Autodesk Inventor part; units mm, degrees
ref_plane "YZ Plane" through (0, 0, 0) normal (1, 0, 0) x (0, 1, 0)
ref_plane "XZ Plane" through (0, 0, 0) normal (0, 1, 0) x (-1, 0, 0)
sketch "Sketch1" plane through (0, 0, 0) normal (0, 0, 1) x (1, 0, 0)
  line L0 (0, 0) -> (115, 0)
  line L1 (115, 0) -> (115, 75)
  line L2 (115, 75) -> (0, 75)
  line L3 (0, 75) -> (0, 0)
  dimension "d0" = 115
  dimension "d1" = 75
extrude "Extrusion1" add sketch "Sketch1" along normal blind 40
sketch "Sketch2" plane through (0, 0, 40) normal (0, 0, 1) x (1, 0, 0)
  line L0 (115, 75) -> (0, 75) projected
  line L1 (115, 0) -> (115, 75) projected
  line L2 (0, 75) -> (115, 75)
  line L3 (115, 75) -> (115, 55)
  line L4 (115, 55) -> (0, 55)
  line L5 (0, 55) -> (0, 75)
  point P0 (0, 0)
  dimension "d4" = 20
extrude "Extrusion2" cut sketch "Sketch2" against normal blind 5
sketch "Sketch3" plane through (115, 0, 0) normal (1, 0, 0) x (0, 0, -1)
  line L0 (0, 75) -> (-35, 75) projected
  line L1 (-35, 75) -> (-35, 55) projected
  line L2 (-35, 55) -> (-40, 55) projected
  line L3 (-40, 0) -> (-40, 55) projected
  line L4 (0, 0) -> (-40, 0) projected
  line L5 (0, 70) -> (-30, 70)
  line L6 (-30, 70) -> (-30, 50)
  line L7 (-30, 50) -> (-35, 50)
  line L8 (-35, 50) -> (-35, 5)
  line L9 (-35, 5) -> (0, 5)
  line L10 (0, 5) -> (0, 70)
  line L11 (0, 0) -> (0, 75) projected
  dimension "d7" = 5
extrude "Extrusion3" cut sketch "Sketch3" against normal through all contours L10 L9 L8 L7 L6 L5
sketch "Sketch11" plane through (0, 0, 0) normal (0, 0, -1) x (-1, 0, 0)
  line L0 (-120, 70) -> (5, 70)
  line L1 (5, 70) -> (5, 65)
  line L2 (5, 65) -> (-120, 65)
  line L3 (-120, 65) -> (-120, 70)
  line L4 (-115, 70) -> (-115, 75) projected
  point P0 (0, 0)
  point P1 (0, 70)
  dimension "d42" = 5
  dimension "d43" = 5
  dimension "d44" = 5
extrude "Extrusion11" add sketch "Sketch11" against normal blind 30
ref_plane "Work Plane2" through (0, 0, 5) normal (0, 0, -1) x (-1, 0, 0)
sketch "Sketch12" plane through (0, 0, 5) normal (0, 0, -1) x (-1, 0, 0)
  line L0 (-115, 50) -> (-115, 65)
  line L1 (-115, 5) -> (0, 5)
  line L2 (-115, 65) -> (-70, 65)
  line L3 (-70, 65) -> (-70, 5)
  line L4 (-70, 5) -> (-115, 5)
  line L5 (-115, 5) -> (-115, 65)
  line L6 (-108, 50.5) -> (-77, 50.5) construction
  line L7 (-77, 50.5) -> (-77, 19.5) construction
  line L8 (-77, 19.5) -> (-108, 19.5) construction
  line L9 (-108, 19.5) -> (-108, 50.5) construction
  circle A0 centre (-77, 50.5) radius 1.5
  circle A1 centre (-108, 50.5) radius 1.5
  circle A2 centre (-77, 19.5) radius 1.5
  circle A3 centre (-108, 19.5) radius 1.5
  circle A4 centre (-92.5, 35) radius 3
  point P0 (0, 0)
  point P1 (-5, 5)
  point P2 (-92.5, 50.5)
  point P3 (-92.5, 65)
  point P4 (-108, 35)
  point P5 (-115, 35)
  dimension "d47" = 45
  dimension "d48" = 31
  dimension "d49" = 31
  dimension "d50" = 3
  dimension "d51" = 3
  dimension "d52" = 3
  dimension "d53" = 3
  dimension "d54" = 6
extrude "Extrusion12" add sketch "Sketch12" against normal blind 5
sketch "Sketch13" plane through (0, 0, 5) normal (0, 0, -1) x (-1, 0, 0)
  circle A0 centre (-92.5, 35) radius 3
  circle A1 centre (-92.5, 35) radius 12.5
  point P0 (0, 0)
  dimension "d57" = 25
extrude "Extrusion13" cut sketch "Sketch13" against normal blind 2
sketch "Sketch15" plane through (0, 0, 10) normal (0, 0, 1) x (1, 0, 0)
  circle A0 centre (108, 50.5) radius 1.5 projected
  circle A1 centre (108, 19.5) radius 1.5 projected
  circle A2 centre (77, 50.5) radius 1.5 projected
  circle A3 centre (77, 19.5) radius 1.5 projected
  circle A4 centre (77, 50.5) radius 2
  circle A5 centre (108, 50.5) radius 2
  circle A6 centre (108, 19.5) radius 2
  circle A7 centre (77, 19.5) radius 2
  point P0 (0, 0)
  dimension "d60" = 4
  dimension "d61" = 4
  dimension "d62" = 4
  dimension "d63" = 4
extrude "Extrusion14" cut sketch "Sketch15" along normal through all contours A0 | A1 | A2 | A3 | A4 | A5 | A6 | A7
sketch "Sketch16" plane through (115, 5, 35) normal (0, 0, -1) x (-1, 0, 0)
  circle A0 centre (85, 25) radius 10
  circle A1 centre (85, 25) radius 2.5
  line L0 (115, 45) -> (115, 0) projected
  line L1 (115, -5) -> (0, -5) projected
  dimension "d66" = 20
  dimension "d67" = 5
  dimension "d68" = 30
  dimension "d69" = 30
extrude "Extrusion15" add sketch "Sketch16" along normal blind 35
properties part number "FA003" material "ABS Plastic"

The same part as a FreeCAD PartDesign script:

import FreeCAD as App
import Part
import Sketcher

V = App.Vector
Q = App.Units.Quantity

doc = App.newDocument("Part")
body = doc.addObject("PartDesign::Body", "Body")

sketch1 = body.newObject("Sketcher::SketchObject", "Sketch")
sketch1.AttachmentSupport = (doc.getObject("XY_Plane"), [""])
sketch1.MapMode = "FlatFace"
sketch1.addGeometry([
    Part.LineSegment(V(0, 75, 0), V(0, 0, 0)),
    Part.LineSegment(V(0, 0, 0), V(115, 0, 0)),
    Part.LineSegment(V(115, 0, 0), V(115, 75, 0)),
    Part.LineSegment(V(115, 75, 0), V(0, 75, 0)),
], False)
sketch1.addConstraint([
    Sketcher.Constraint("Coincident", 0, 2, 1, 1),
    Sketcher.Constraint("Coincident", 1, 2, 2, 1),
    Sketcher.Constraint("Coincident", 2, 2, 3, 1),
    Sketcher.Constraint("Coincident", 3, 2, 0, 1),
    Sketcher.Constraint("Vertical", 0),
    Sketcher.Constraint("Horizontal", 1),
    Sketcher.Constraint("Vertical", 2),
    Sketcher.Constraint("Horizontal", 3),
    Sketcher.Constraint("Coincident", 0, 2, -1, 1),
    Sketcher.Constraint("DistanceX", 1, 1, 1, 2, Q("115 mm")),
    Sketcher.Constraint("DistanceY", 0, 2, 0, 1, Q("75 mm")),
])
pad1 = body.newObject("PartDesign::Pad", "Pad")
pad1.Profile = sketch1
pad1.Length = 40

sketch2 = body.newObject("Sketcher::SketchObject", "Sketch001")
sketch2.AttachmentSupport = (doc.getObject("XY_Plane"), [""])
sketch2.MapMode = "FlatFace"
sketch2.AttachmentOffset = App.Placement(V(0, 0, 40), App.Rotation())
sketch2.addGeometry([
    Part.LineSegment(V(115, 55, 0), V(115, 75, 0)),
    Part.LineSegment(V(115, 75, 0), V(0, 75, 0)),
    Part.LineSegment(V(0, 75, 0), V(0, 55, 0)),
    Part.LineSegment(V(0, 55, 0), V(115, 55, 0)),
], False)
sketch2.addConstraint([
    Sketcher.Constraint("Coincident", 0, 2, 1, 1),
    Sketcher.Constraint("Coincident", 1, 2, 2, 1),
    Sketcher.Constraint("Coincident", 2, 2, 3, 1),
    Sketcher.Constraint("Coincident", 3, 2, 0, 1),
    Sketcher.Constraint("Vertical", 0),
    Sketcher.Constraint("Horizontal", 1),
    Sketcher.Constraint("Vertical", 2),
    Sketcher.Constraint("Horizontal", 3),
    Sketcher.Constraint("PointOnObject", 1, 2, -2),
    Sketcher.Constraint("DistanceY", 0, 1, 0, 2, Q("20 mm")),
    Sketcher.Constraint("DistanceX", 1, 2, 1, 1, Q("115 mm")),
    Sketcher.Constraint("DistanceY", -1, 1, 0, 2, Q("75 mm")),
])
pocket1 = body.newObject("PartDesign::Pocket", "Pocket")
pocket1.Profile = sketch2
pocket1.Length = 5

sketch3 = body.newObject("Sketcher::SketchObject", "Sketch002")
sketch3.AttachmentSupport = (doc.getObject("YZ_Plane"), [""])
sketch3.MapMode = "FlatFace"
sketch3.AttachmentOffset = App.Placement(V(0, 0, 115), App.Rotation())
sketch3.addGeometry([
    Part.LineSegment(V(5, 0, 0), V(70, 0, 0)),
    Part.LineSegment(V(70, 0, 0), V(70, 30, 0)),
    Part.LineSegment(V(70, 30, 0), V(50, 30, 0)),
    Part.LineSegment(V(50, 30, 0), V(50, 35, 0)),
    Part.LineSegment(V(50, 35, 0), V(5, 35, 0)),
    Part.LineSegment(V(5, 35, 0), V(5, 0, 0)),
], False)
sketch3.addConstraint([
    Sketcher.Constraint("Coincident", 0, 2, 1, 1),
    Sketcher.Constraint("Coincident", 1, 2, 2, 1),
    Sketcher.Constraint("Coincident", 2, 2, 3, 1),
    Sketcher.Constraint("Coincident", 3, 2, 4, 1),
    Sketcher.Constraint("Coincident", 4, 2, 5, 1),
    Sketcher.Constraint("Coincident", 5, 2, 0, 1),
    Sketcher.Constraint("Horizontal", 0),
    Sketcher.Constraint("Vertical", 1),
    Sketcher.Constraint("Horizontal", 2),
    Sketcher.Constraint("Vertical", 3),
    Sketcher.Constraint("Horizontal", 4),
    Sketcher.Constraint("Vertical", 5),
    Sketcher.Constraint("PointOnObject", 0, 2, -1),
    Sketcher.Constraint("DistanceY", 3, 1, 3, 2, Q("5 mm")),
    Sketcher.Constraint("DistanceX", -1, 1, 4, 2, Q("5 mm")),
    Sketcher.Constraint("DistanceX", 0, 1, 0, 2, Q("65 mm")),
    Sketcher.Constraint("DistanceX", 2, 2, 2, 1, Q("20 mm")),
    Sketcher.Constraint("DistanceY", 1, 1, 1, 2, Q("30 mm")),
])
pocket2 = body.newObject("PartDesign::Pocket", "Pocket001")
pocket2.Profile = sketch3
pocket2.Type = "ThroughAll"

sketch4 = body.newObject("Sketcher::SketchObject", "Sketch003")
sketch4.AttachmentSupport = (doc.getObject("XY_Plane"), [""])
sketch4.MapMode = "FlatFace"
sketch4.addGeometry([
    Part.LineSegment(V(-5, 70, 0), V(120, 70, 0)),
    Part.LineSegment(V(120, 70, 0), V(120, 65, 0)),
    Part.LineSegment(V(120, 65, 0), V(-5, 65, 0)),
    Part.LineSegment(V(-5, 65, 0), V(-5, 70, 0)),
], False)
sketch4.addConstraint([
    Sketcher.Constraint("Coincident", 0, 2, 1, 1),
    Sketcher.Constraint("Coincident", 1, 2, 2, 1),
    Sketcher.Constraint("Coincident", 2, 2, 3, 1),
    Sketcher.Constraint("Coincident", 3, 2, 0, 1),
    Sketcher.Constraint("Horizontal", 0),
    Sketcher.Constraint("Vertical", 1),
    Sketcher.Constraint("Horizontal", 2),
    Sketcher.Constraint("Vertical", 3),
    Sketcher.Constraint("DistanceY", 1, 2, 1, 1, Q("5 mm")),
    Sketcher.Constraint("DistanceX", 2, 2, -1, 1, Q("5 mm")),
    Sketcher.Constraint("DistanceX", 0, 1, 0, 2, Q("125 mm")),
    Sketcher.Constraint("DistanceY", -1, 1, 0, 2, Q("70 mm")),
])
pad2 = body.newObject("PartDesign::Pad", "Pad001")
pad2.Profile = sketch4
pad2.Length = 30

sketch5 = body.newObject("Sketcher::SketchObject", "Sketch004")
sketch5.AttachmentSupport = (doc.getObject("XY_Plane"), [""])
sketch5.MapMode = "FlatFace"
sketch5.AttachmentOffset = App.Placement(V(0, 0, 5), App.Rotation())
sketch5.addGeometry([
    Part.LineSegment(V(115, 65, 0), V(115, 5, 0)),
    Part.LineSegment(V(115, 5, 0), V(70, 5, 0)),
    Part.LineSegment(V(70, 5, 0), V(70, 65, 0)),
    Part.LineSegment(V(70, 65, 0), V(115, 65, 0)),
    Part.Circle(V(108, 19.5, 0), V(0, 0, 1), 1.5),
    Part.Circle(V(77, 19.5, 0), V(0, 0, 1), 1.5),
    Part.Circle(V(108, 50.5, 0), V(0, 0, 1), 1.5),
    Part.Circle(V(92.5, 35, 0), V(0, 0, 1), 3),
    Part.Circle(V(77, 50.5, 0), V(0, 0, 1), 1.5),
], False)
sketch5.addConstraint([
    Sketcher.Constraint("Coincident", 0, 2, 1, 1),
    Sketcher.Constraint("Coincident", 1, 2, 2, 1),
    Sketcher.Constraint("Coincident", 2, 2, 3, 1),
    Sketcher.Constraint("Coincident", 3, 2, 0, 1),
    Sketcher.Constraint("Vertical", 0),
    Sketcher.Constraint("Horizontal", 1),
    Sketcher.Constraint("Vertical", 2),
    Sketcher.Constraint("Horizontal", 3),
    Sketcher.Constraint("Equal", 4, 5),
    Sketcher.Constraint("Equal", 5, 6),
    Sketcher.Constraint("Equal", 6, 8),
    Sketcher.Constraint("Horizontal", 4, 3, 5, 3),
    Sketcher.Constraint("Horizontal", 6, 3, 8, 3),
    Sketcher.Constraint("Vertical", 4, 3, 6, 3),
    Sketcher.Constraint("Vertical", 5, 3, 8, 3),
    Sketcher.Constraint("Diameter", 4, Q("3 mm")),
    Sketcher.Constraint("Diameter", 7, Q("6 mm")),
    Sketcher.Constraint("DistanceX", 1, 2, 1, 1, Q("45 mm")),
    Sketcher.Constraint("DistanceX", 5, 3, 4, 3, Q("31 mm")),
    Sketcher.Constraint("DistanceY", 4, 3, 6, 3, Q("31 mm")),
    Sketcher.Constraint("DistanceY", 0, 2, 0, 1, Q("60 mm")),
    Sketcher.Constraint("DistanceX", -1, 1, 4, 3, Q("108 mm")),
    Sketcher.Constraint("DistanceY", -1, 1, 7, 3, Q("35 mm")),
    Sketcher.Constraint("DistanceX", -1, 1, 0, 2, Q("115 mm")),
    Sketcher.Constraint("DistanceY", -1, 1, 0, 2, Q("5 mm")),
    Sketcher.Constraint("DistanceY", -1, 1, 4, 3, Q("19.5 mm")),
    Sketcher.Constraint("DistanceX", -1, 1, 7, 3, Q("92.5 mm")),
])
pad3 = body.newObject("PartDesign::Pad", "Pad002")
pad3.Profile = sketch5
pad3.Length = 5

sketch6 = body.newObject("Sketcher::SketchObject", "Sketch005")
sketch6.AttachmentSupport = (doc.getObject("XY_Plane"), [""])
sketch6.MapMode = "FlatFace"
sketch6.AttachmentOffset = App.Placement(V(0, 0, 5), App.Rotation())
sketch6.addGeometry([
    Part.Circle(V(92.5, 35, 0), V(0, 0, 1), 12.5),
    Part.Circle(V(92.5, 35, 0), V(0, 0, 1), 3),
], False)
sketch6.addConstraint([
    Sketcher.Constraint("Coincident", 1, 3, 0, 3),
    Sketcher.Constraint("Diameter", 0, Q("25 mm")),
    Sketcher.Constraint("Diameter", 1, Q("6 mm")),
    Sketcher.Constraint("DistanceY", -1, 1, 0, 3, Q("35 mm")),
    Sketcher.Constraint("DistanceX", -1, 1, 0, 3, Q("92.5 mm")),
])
pocket3 = body.newObject("PartDesign::Pocket", "Pocket002")
pocket3.Profile = sketch6
pocket3.Length = 2
pocket3.Reversed = True

sketch7 = body.newObject("Sketcher::SketchObject", "Sketch006")
sketch7.AttachmentSupport = (doc.getObject("XY_Plane"), [""])
sketch7.MapMode = "FlatFace"
sketch7.AttachmentOffset = App.Placement(V(0, 0, 10), App.Rotation())
sketch7.addGeometry([
    Part.Circle(V(108, 50.5, 0), V(0, 0, 1), 2),
    Part.Circle(V(108, 19.5, 0), V(0, 0, 1), 2),
    Part.Circle(V(77, 50.5, 0), V(0, 0, 1), 2),
    Part.Circle(V(77, 19.5, 0), V(0, 0, 1), 2),
], False)
sketch7.addConstraint([
    Sketcher.Constraint("Equal", 0, 1),
    Sketcher.Constraint("Equal", 1, 2),
    Sketcher.Constraint("Equal", 2, 3),
    Sketcher.Constraint("Horizontal", 0, 3, 2, 3),
    Sketcher.Constraint("Horizontal", 1, 3, 3, 3),
    Sketcher.Constraint("Vertical", 0, 3, 1, 3),
    Sketcher.Constraint("Vertical", 2, 3, 3, 3),
    Sketcher.Constraint("Diameter", 0, Q("4 mm")),
    Sketcher.Constraint("DistanceX", -1, 1, 0, 3, Q("108 mm")),
    Sketcher.Constraint("DistanceX", -1, 1, 2, 3, Q("77 mm")),
    Sketcher.Constraint("DistanceY", 1, 3, 0, 3, Q("31 mm")),
    Sketcher.Constraint("DistanceY", -1, 1, 0, 3, Q("50.5 mm")),
])
pocket4 = body.newObject("PartDesign::Pocket", "Pocket003")
pocket4.Profile = sketch7
pocket4.Type = "ThroughAll"
pocket4.Reversed = True

sketch8 = body.newObject("Sketcher::SketchObject", "Sketch007")
sketch8.AttachmentSupport = (doc.getObject("XY_Plane"), [""])
sketch8.MapMode = "FlatFace"
sketch8.AttachmentOffset = App.Placement(V(0, 0, 35), App.Rotation())
sketch8.addGeometry([
    Part.Circle(V(30, 30, 0), V(0, 0, 1), 10),
    Part.Circle(V(30, 30, 0), V(0, 0, 1), 2.5),
], False)
sketch8.addConstraint([
    Sketcher.Constraint("Coincident", 1, 3, 0, 3),
    Sketcher.Constraint("Diameter", 0, Q("20 mm")),
    Sketcher.Constraint("Diameter", 1, Q("5 mm")),
    Sketcher.Constraint("DistanceX", -1, 1, 0, 3, Q("30 mm")),
    Sketcher.Constraint("DistanceY", -1, 1, 0, 3, Q("30 mm")),
])
pad4 = body.newObject("PartDesign::Pad", "Pad003")
pad4.Profile = sketch8
pad4.Length = 35
pad4.Reversed = True

doc.recompute()
